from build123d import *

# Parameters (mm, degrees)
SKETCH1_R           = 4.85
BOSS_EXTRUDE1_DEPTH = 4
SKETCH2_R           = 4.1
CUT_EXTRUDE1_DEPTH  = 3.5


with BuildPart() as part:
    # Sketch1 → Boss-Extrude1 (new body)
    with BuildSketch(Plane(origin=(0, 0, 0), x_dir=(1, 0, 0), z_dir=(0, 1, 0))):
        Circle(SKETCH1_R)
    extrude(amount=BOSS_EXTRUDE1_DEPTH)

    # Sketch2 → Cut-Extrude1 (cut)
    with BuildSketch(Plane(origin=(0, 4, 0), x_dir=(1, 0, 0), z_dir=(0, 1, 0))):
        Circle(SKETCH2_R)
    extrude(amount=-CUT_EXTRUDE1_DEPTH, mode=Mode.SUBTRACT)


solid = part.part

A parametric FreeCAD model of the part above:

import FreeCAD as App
import Part
import Sketcher
from FreeCAD import Vector

doc = App.newDocument("Part")
body = doc.addObject("PartDesign::Body", "Body")

# Sketch on XZ plane
sketch1 = body.newObject("Sketcher::SketchObject", "Sketch")
sketch1.AttachmentSupport = (doc.getObject("XZ_Plane"), [""])
sketch1.MapMode = "FlatFace"
sketch1.addGeometry(Part.Circle(Vector(0, 0, 0), Vector(0, 0, 1), 4.8), False)
sketch1.addConstraint(Sketcher.Constraint("Coincident", 0, 3, -1, 1))
sketch1.addConstraint(Sketcher.Constraint("Diameter", 0, 9.7))
pad1 = body.newObject("PartDesign::Pad", "Pad")
pad1.Profile = sketch1
pad1.Length = 4
pad1.Reversed = True

# Sketch on XZ plane
sketch2 = body.newObject("Sketcher::SketchObject", "Sketch001")
sketch2.AttachmentSupport = (doc.getObject("XZ_Plane"), [""])
sketch2.MapMode = "FlatFace"
sketch2.AttachmentOffset = App.Placement(Vector(0, 0, -4), App.Rotation())
sketch2.addGeometry(Part.Circle(Vector(0, 0, 0), Vector(0, 0, 1), 4.1), False)
sketch2.addConstraint(Sketcher.Constraint("Coincident", 0, 3, -1, 1))
sketch2.addConstraint(Sketcher.Constraint("Diameter", 0, 8.2))
pocket1 = body.newObject("PartDesign::Pocket", "Pocket")
pocket1.Profile = sketch2
pocket1.Length = 3.5
pocket1.Reversed = True

doc.recompute()
